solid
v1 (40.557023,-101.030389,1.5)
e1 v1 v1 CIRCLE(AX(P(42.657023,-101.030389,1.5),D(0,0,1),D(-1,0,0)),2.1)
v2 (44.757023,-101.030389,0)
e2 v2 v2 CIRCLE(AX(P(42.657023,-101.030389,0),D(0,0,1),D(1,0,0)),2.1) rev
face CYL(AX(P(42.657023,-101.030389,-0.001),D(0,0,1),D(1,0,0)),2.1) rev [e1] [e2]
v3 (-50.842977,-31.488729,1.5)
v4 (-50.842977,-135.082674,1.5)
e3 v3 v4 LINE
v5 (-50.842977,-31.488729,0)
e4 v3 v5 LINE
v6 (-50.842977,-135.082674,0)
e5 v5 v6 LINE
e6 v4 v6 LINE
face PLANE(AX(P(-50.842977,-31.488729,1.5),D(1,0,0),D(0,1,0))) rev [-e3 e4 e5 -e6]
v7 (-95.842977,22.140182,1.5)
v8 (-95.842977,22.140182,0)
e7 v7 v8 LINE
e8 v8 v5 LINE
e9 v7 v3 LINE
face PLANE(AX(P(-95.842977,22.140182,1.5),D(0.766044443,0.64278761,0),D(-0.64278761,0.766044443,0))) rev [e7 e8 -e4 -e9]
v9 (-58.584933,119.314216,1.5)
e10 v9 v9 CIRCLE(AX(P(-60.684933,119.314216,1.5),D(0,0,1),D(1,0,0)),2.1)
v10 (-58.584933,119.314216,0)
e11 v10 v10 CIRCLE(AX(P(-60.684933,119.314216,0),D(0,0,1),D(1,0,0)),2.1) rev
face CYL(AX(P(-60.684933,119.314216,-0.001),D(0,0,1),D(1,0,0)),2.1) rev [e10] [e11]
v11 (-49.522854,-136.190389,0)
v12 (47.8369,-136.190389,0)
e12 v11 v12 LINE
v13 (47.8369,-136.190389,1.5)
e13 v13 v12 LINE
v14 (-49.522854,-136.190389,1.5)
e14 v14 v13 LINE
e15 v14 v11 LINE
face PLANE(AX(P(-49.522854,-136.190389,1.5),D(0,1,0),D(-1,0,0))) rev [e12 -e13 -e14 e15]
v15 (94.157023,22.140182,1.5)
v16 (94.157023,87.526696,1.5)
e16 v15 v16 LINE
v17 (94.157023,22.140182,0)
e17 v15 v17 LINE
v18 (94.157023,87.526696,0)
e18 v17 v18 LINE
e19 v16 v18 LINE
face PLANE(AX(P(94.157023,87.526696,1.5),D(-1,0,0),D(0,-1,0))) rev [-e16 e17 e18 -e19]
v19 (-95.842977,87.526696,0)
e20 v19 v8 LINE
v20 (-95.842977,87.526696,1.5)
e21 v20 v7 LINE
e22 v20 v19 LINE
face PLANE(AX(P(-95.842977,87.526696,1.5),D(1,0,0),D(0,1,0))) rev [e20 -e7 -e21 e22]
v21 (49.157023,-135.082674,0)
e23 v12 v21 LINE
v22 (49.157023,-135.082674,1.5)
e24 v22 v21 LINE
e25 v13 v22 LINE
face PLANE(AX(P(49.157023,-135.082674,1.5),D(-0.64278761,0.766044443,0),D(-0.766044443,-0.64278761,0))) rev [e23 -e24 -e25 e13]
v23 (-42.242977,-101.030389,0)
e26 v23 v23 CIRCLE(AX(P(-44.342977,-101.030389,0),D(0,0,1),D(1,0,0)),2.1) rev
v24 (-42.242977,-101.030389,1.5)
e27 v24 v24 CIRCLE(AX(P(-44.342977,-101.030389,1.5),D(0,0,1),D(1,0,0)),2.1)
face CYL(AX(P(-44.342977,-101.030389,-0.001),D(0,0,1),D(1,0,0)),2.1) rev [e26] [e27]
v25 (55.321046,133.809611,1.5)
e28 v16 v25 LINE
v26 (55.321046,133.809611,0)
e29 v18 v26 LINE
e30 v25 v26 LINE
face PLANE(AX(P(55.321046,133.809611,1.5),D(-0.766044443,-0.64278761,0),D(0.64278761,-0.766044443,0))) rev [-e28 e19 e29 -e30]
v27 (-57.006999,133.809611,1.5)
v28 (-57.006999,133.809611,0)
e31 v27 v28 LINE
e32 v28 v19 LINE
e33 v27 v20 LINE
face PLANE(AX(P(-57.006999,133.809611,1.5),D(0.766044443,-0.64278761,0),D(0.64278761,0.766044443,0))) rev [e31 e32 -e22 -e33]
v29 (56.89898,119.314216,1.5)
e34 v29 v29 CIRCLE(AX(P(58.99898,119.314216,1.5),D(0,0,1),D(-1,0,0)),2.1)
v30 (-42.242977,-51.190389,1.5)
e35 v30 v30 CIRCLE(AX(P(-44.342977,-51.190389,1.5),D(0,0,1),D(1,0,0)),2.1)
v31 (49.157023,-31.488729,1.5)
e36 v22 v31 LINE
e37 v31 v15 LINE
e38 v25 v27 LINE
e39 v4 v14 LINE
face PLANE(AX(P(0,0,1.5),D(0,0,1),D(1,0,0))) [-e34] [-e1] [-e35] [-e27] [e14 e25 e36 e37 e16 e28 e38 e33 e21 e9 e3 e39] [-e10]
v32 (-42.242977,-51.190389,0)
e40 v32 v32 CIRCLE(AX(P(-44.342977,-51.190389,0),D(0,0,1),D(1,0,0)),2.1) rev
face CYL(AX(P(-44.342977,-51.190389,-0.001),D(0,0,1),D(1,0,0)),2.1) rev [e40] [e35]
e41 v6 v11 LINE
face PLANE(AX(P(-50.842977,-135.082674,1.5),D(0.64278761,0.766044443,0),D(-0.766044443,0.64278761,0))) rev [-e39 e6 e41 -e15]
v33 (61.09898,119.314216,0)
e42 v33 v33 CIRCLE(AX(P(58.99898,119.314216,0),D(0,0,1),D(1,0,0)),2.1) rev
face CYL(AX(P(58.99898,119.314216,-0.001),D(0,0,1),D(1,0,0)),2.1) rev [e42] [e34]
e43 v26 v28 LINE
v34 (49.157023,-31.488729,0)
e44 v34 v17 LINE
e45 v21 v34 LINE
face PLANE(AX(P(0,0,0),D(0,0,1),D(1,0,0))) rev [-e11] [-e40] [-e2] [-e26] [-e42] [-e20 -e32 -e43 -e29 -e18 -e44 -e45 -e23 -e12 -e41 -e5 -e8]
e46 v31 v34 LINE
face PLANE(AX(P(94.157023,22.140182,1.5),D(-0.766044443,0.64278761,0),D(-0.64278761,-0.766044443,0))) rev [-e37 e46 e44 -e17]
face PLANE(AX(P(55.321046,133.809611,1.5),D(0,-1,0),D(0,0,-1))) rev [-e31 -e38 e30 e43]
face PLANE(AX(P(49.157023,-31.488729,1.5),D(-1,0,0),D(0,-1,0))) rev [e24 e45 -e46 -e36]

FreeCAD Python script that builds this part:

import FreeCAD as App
import Part
import Sketcher
from FreeCAD import Vector
Q = App.Units.Quantity


def add_polygon(sketch, points):
    """Adds a closed chain of lines whose ends are joined by coincident constraints."""
    first, n = sketch.GeometryCount, len(points)
    for a, b in zip(points, points[1:] + points[:1]):
        sketch.addGeometry(Part.LineSegment(App.Vector(*a, 0), App.Vector(*b, 0)), False)
    for i in range(n):
        sketch.addConstraint(Sketcher.Constraint("Coincident", first + i, 2, first + (i + 1) % n, 1))

doc = App.newDocument("Part")
params = doc.addObject("Spreadsheet::Sheet", "Params")
for row, (alias, value) in enumerate([
    ("pad1_length", "1.5 mm"),
    ("sketch2_diameter", "4.2 mm"),
    ("sketch3_diameter", "4.2 mm"),
    ("sketch4_diameter", "4.2 mm"),
    ("sketch5_diameter", "4.2 mm"),
    ("sketch6_diameter", "4.2 mm"),
], start=1):
    params.set(f"A{row}", alias)
    params.set(f"B{row}", "=" + value)
    params.setAlias(f"B{row}", alias)

body = doc.addObject("PartDesign::Body", "Body")

# Sketch on XY plane
sketch1 = body.newObject("Sketcher::SketchObject", "Sketch")
sketch1.AttachmentSupport = (doc.getObject("XY_Plane"), [""])
sketch1.MapMode = "FlatFace"
add_polygon(sketch1, [(55.3, 133.8), (-57, 133.8), (-95.8, 87.5), (-95.8, 22.1), (-50.8, -31.5), (-50.8, -135.1), (-49.5, -136.2), (47.8, -136.2), (49.2, -135.1), (49.2, -31.5), (94.2, 22.1), (94.2, 87.5)])  # lines 0-11
sketch1.addConstraint([
    Sketcher.Constraint("Horizontal", 0),
    Sketcher.Constraint("Vertical", 2),
    Sketcher.Constraint("Vertical", 4),
    Sketcher.Constraint("Horizontal", 6),
    Sketcher.Constraint("Vertical", 8),
    Sketcher.Constraint("Vertical", 10),
    Sketcher.Constraint("Perpendicular", 1, 5),
    Sketcher.Constraint("Perpendicular", 3, 7),
    Sketcher.Constraint("Perpendicular", 5, 9),
    Sketcher.Constraint("Perpendicular", 7, 11),
    Sketcher.Constraint("Horizontal", 4, 2, 7, 2),
    Sketcher.Constraint("Horizontal", 3, 2, 8, 2),
    Sketcher.Constraint("Horizontal", 2, 2, 9, 2),
    Sketcher.Constraint("Horizontal", 1, 2, 10, 2),
    Sketcher.Constraint("Equal", 5, 7),
    Sketcher.Constraint("Angle", 1, Q("-130 deg")),
    Sketcher.Constraint("DistanceX", 2, 2, 3, 2, Q("45 mm")),
    Sketcher.Constraint("DistanceY", 5, 2, 0, 2, Q("270 mm")),
    Sketcher.Constraint("DistanceX", 4, 2, 7, 2, Q("100 mm")),
    Sketcher.Constraint("DistanceX", 0, 2, -1, 1, Q("57.006999 mm")),
    Sketcher.Constraint("Distance", 5, Q("1.723298 mm")),
    Sketcher.Constraint("DistanceX", -1, 1, 6, 2, Q("47.8369 mm")),
    Sketcher.Constraint("DistanceY", 2, 2, 2, 1, Q("65.386514 mm")),
    Sketcher.Constraint("DistanceY", -1, 1, 0, 2, Q("133.809611 mm")),
])
pad1 = body.newObject("PartDesign::Pad", "Pad")
pad1.Profile = sketch1
pad1.setExpression("Length", "Params.pad1_length")

# Sketch on XY plane
sketch2 = body.newObject("Sketcher::SketchObject", "Sketch001")
sketch2.AttachmentSupport = (doc.getObject("XY_Plane"), [""])
sketch2.MapMode = "FlatFace"
sketch2.AttachmentOffset = App.Placement(Vector(0, 0, 1.5), App.Rotation())
sketch2.addGeometry(Part.Circle(Vector(-60.7, 119.3, 0), Vector(0, 0, 1), 2.1), False)
sketch2.addConstraint([
    Sketcher.Constraint("Diameter", 0, Q("4.2 mm")),
    Sketcher.Constraint("DistanceX", 0, 3, -1, 1, Q("60.684933 mm")),
    Sketcher.Constraint("DistanceY", -1, 1, 0, 3, Q("119.314216 mm")),
])
sketch2.setExpression("Constraints[0]", "Params.sketch2_diameter")
pocket1 = body.newObject("PartDesign::Pocket", "Pocket")
pocket1.Profile = sketch2
pocket1.Type = "UpToFirst"

# Sketch on XY plane
sketch3 = body.newObject("Sketcher::SketchObject", "Sketch002")
sketch3.AttachmentSupport = (doc.getObject("XY_Plane"), [""])
sketch3.MapMode = "FlatFace"
sketch3.AttachmentOffset = App.Placement(Vector(0, 0, 1.5), App.Rotation())
sketch3.addGeometry(Part.Circle(Vector(-44.3, -101, 0), Vector(0, 0, 1), 2.1), False)
sketch3.addConstraint([
    Sketcher.Constraint("Diameter", 0, Q("4.2 mm")),
    Sketcher.Constraint("DistanceY", 0, 3, -1, 1, Q("101.030389 mm")),
    Sketcher.Constraint("DistanceX", 0, 3, -1, 1, Q("44.342977 mm")),
])
sketch3.setExpression("Constraints[0]", "Params.sketch3_diameter")
pocket2 = body.newObject("PartDesign::Pocket", "Pocket001")
pocket2.Profile = sketch3
pocket2.Type = "UpToFirst"

# Sketch on XY plane
sketch4 = body.newObject("Sketcher::SketchObject", "Sketch003")
sketch4.AttachmentSupport = (doc.getObject("XY_Plane"), [""])
sketch4.MapMode = "FlatFace"
sketch4.AttachmentOffset = App.Placement(Vector(0, 0, 1.5), App.Rotation())
sketch4.addGeometry(Part.Circle(Vector(42.7, -101, 0), Vector(0, 0, 1), 2.1), False)
sketch4.addConstraint([
    Sketcher.Constraint("Diameter", 0, Q("4.2 mm")),
    Sketcher.Constraint("DistanceY", 0, 3, -1, 1, Q("101.030389 mm")),
    Sketcher.Constraint("DistanceX", -1, 1, 0, 3, Q("42.657023 mm")),
])
sketch4.setExpression("Constraints[0]", "Params.sketch4_diameter")
pocket3 = body.newObject("PartDesign::Pocket", "Pocket002")
pocket3.Profile = sketch4
pocket3.Type = "UpToFirst"

# Sketch on XY plane
sketch5 = body.newObject("Sketcher::SketchObject", "Sketch004")
sketch5.AttachmentSupport = (doc.getObject("XY_Plane"), [""])
sketch5.MapMode = "FlatFace"
sketch5.AttachmentOffset = App.Placement(Vector(0, 0, 1.5), App.Rotation())
sketch5.addGeometry(Part.Circle(Vector(59, 119.3, 0), Vector(0, 0, 1), 2.1), False)
sketch5.addConstraint([
    Sketcher.Constraint("Diameter", 0, Q("4.2 mm")),
    Sketcher.Constraint("DistanceX", -1, 1, 0, 3, Q("58.99898 mm")),
    Sketcher.Constraint("DistanceY", -1, 1, 0, 3, Q("119.314216 mm")),
])
sketch5.setExpression("Constraints[0]", "Params.sketch5_diameter")
pocket4 = body.newObject("PartDesign::Pocket", "Pocket003")
pocket4.Profile = sketch5
pocket4.Type = "UpToFirst"

# Sketch on XY plane
sketch6 = body.newObject("Sketcher::SketchObject", "Sketch005")
sketch6.AttachmentSupport = (doc.getObject("XY_Plane"), [""])
sketch6.MapMode = "FlatFace"
sketch6.AttachmentOffset = App.Placement(Vector(0, 0, 1.5), App.Rotation())
sketch6.addGeometry(Part.Circle(Vector(-44.3, -51.2, 0), Vector(0, 0, 1), 2.1), False)
sketch6.addConstraint([
    Sketcher.Constraint("Diameter", 0, Q("4.2 mm")),
    Sketcher.Constraint("DistanceY", 0, 3, -1, 1, Q("51.190389 mm")),
    Sketcher.Constraint("DistanceX", 0, 3, -1, 1, Q("44.342977 mm")),
])
sketch6.setExpression("Constraints[0]", "Params.sketch6_diameter")
pocket5 = body.newObject("PartDesign::Pocket", "Pocket004")
pocket5.Profile = sketch6
pocket5.Type = "UpToFirst"

doc.recompute()
